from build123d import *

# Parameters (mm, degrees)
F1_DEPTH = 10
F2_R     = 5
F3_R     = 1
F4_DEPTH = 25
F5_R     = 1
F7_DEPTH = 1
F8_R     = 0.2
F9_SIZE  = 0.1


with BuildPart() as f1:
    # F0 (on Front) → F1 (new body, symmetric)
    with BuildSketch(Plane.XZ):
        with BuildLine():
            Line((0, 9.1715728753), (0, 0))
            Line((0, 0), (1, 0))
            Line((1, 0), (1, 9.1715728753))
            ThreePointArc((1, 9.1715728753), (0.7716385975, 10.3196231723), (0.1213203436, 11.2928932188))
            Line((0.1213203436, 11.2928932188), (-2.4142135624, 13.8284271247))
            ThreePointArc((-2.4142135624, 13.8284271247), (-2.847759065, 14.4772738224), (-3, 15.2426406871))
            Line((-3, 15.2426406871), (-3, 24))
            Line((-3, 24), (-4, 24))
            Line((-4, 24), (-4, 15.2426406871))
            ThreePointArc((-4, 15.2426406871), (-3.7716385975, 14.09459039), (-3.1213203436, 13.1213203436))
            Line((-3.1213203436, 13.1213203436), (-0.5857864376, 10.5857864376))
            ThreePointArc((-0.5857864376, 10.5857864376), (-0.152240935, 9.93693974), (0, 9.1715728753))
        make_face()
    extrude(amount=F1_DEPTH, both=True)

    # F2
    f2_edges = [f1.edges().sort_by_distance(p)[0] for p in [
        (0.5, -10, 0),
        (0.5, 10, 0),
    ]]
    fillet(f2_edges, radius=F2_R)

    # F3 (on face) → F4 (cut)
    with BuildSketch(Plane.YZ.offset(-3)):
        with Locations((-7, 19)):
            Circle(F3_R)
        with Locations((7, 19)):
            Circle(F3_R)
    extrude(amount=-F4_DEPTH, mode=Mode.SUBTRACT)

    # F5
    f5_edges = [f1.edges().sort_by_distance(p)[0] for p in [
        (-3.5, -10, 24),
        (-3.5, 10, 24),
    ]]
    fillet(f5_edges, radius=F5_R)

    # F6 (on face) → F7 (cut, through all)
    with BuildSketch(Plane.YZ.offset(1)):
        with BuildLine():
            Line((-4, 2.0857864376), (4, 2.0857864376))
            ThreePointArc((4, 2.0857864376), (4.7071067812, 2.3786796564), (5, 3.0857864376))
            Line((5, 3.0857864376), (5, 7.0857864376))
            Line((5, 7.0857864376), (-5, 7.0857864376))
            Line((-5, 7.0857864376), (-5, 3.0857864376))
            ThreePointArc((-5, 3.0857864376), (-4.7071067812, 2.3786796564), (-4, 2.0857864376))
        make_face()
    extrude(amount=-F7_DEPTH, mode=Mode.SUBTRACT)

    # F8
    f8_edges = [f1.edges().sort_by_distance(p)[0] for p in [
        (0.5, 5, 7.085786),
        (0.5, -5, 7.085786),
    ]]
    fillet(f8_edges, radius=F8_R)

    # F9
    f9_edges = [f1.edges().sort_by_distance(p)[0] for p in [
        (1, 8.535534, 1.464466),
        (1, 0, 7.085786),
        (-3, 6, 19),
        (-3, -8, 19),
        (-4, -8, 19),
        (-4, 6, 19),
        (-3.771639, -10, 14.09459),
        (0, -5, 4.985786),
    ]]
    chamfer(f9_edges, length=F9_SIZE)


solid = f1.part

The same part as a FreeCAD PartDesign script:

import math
import FreeCAD as App
import Part
import Sketcher
Q = App.Units.Quantity


def edges_at(feature, points):
    """Names of the edges that pass closest to the given points."""
    edges = feature.Shape.Edges
    near = lambda p: min(range(len(edges)), key=lambda i: edges[i].distToShape(Part.Vertex(*p))[0])
    return sorted({f"Edge{near(p) + 1}" for p in points})

doc = App.newDocument("Part")
params = doc.addObject("Spreadsheet::Sheet", "Params")
for row, (alias, value) in enumerate([
    ("sketch1_radius", "3 mm"),
    ("sketch1_radius2", "2 mm"),
    ("pad1_length", "20 mm"),
    ("fillet_radius", "5 mm"),
    ("sketch2_diameter", "2 mm"),
    ("pocket1_length", "25 mm"),
    ("fillet2_radius", "1 mm"),
    ("sketch3_radius", "1 mm"),
    ("sketch3_width", "8 mm"),
    ("sketch3_height", "4 mm"),
    ("fillet3_radius", "0.2 mm"),
    ("chamfer_size", "0.1 mm"),
], start=1):
    params.set(f"A{row}", alias)
    params.set(f"B{row}", "=" + value)
    params.setAlias(f"B{row}", alias)

body = doc.addObject("PartDesign::Body", "Body")

sketch1 = doc.addObject("Sketcher::SketchObject", "Sketch")
body.addObject(sketch1)
sketch1.AttachmentSupport = (doc.XZ_Plane, [""])
sketch1.MapMode = "FlatFace"
sketch1.addGeometry([
    Part.LineSegment(App.Vector(0, 9.2, 0), App.Vector(0, 0, 0)),
    Part.LineSegment(App.Vector(0, 0, 0), App.Vector(1, 0, 0)),
    Part.LineSegment(App.Vector(1, 0, 0), App.Vector(1, 9.2, 0)),
    Part.ArcOfCircle(Part.Circle(App.Vector(-2, 9.2, 0), App.Vector(0, 0, 1), 3), math.radians(0), math.radians(45)),
    Part.LineSegment(App.Vector(0.1, 11.3, 0), App.Vector(-2.4, 13.8, 0)),
    Part.ArcOfCircle(Part.Circle(App.Vector(-1, 15.2, 0), App.Vector(0, 0, 1), 2), math.radians(180), math.radians(225)),
    Part.LineSegment(App.Vector(-3, 15.2, 0), App.Vector(-3, 24, 0)),
    Part.LineSegment(App.Vector(-3, 24, 0), App.Vector(-4, 24, 0)),
    Part.LineSegment(App.Vector(-4, 24, 0), App.Vector(-4, 15.2, 0)),
    Part.ArcOfCircle(Part.Circle(App.Vector(-1, 15.2, 0), App.Vector(0, 0, 1), 3), math.radians(180), math.radians(225)),
    Part.LineSegment(App.Vector(-3.1, 13.1, 0), App.Vector(-0.6, 10.6, 0)),
    Part.ArcOfCircle(Part.Circle(App.Vector(-2, 9.2, 0), App.Vector(0, 0, 1), 2), math.radians(0), math.radians(45)),
], False)
sketch1.addConstraint([
    Sketcher.Constraint("Coincident", 0, 2, 1, 1),
    Sketcher.Constraint("Coincident", 1, 2, 2, 1),
    Sketcher.Constraint("Tangent", 2, 2, 3, 1),
    Sketcher.Constraint("Tangent", 3, 2, 4, 1),
    Sketcher.Constraint("Tangent", 4, 2, 5, 2),
    Sketcher.Constraint("Tangent", 5, 1, 6, 1),
    Sketcher.Constraint("Coincident", 6, 2, 7, 1),
    Sketcher.Constraint("Coincident", 7, 2, 8, 1),
    Sketcher.Constraint("Tangent", 8, 2, 9, 1),
    Sketcher.Constraint("Tangent", 9, 2, 10, 1),
    Sketcher.Constraint("Tangent", 10, 2, 11, 2),
    Sketcher.Constraint("Tangent", 11, 1, 0, 1),
    Sketcher.Constraint("Vertical", 0),
    Sketcher.Constraint("Horizontal", 1),
    Sketcher.Constraint("Vertical", 2),
    Sketcher.Constraint("Vertical", 6),
    Sketcher.Constraint("Horizontal", 7),
    Sketcher.Constraint("Vertical", 8),
    Sketcher.Constraint("Coincident", 0, 2, -1, 1),
    Sketcher.Constraint("Coincident", 9, 3, 5, 3),
    Sketcher.Constraint("Coincident", 11, 3, 3, 3),
    Sketcher.Constraint("Equal", 3, 9),
    Sketcher.Constraint("Equal", 5, 11),
    Sketcher.Constraint("Radius", 3, 3.0),
    Sketcher.Constraint("Radius", 5, 2.0),
    Sketcher.Constraint("Angle", 4, Q("135 deg")),
    Sketcher.Constraint("DistanceX", 5, 3, -1, 1, 1.0),
    Sketcher.Constraint("DistanceY", -1, 1, 6, 2, 24.0),
    Sketcher.Constraint("DistanceY", 6, 1, 6, 2, 8.757359),
])
sketch1.setExpression("Constraints[23]", "Params.sketch1_radius")
sketch1.setExpression("Constraints[24]", "Params.sketch1_radius2")
pad1 = doc.addObject("PartDesign::Pad", "Pad")
body.addObject(pad1)
pad1.Profile = sketch1
pad1.setExpression("Length", "Params.pad1_length")
pad1.Midplane = True
doc.recompute()

fillet = doc.addObject("PartDesign::Fillet", "Fillet")
body.addObject(fillet)
fillet.Base = (pad1, edges_at(pad1, [(0.5, -10, 0), (0.5, 10, 0)]))
fillet.setExpression("Radius", "Params.fillet_radius")

sketch2 = doc.addObject("Sketcher::SketchObject", "Sketch001")
body.addObject(sketch2)
sketch2.AttachmentSupport = (doc.YZ_Plane, [""])
sketch2.MapMode = "FlatFace"
sketch2.AttachmentOffset = App.Placement(App.Vector(0, 0, -3), App.Rotation())
sketch2.addGeometry([
    Part.Circle(App.Vector(-7, 19, 0), App.Vector(0, 0, 1), 1),
    Part.Circle(App.Vector(7, 19, 0), App.Vector(0, 0, 1), 1),
], False)
sketch2.addConstraint([
    Sketcher.Constraint("Equal", 0, 1),
    Sketcher.Constraint("Symmetric", 0, 3, 1, 3, -2),
    Sketcher.Constraint("Diameter", 0, 2.0),
    Sketcher.Constraint("DistanceX", 0, 3, -1, 1, 7.0),
    Sketcher.Constraint("DistanceY", -1, 1, 0, 3, 19.0),
])
sketch2.setExpression("Constraints[2]", "Params.sketch2_diameter")
pocket1 = doc.addObject("PartDesign::Pocket", "Pocket")
body.addObject(pocket1)
pocket1.Profile = sketch2
pocket1.setExpression("Length", "Params.pocket1_length")
doc.recompute()

fillet2 = doc.addObject("PartDesign::Fillet", "Fillet001")
body.addObject(fillet2)
fillet2.Base = (pocket1, edges_at(pocket1, [(-3.5, -10, 24), (-3.5, 10, 24)]))
fillet2.setExpression("Radius", "Params.fillet2_radius")

sketch3 = doc.addObject("Sketcher::SketchObject", "Sketch002")
body.addObject(sketch3)
sketch3.AttachmentSupport = (doc.YZ_Plane, [""])
sketch3.MapMode = "FlatFace"
sketch3.AttachmentOffset = App.Placement(App.Vector(0, 0, 1), App.Rotation())
sketch3.addGeometry([
    Part.LineSegment(App.Vector(-4, 2.1, 0), App.Vector(4, 2.1, 0)),
    Part.ArcOfCircle(Part.Circle(App.Vector(4, 3.1, 0), App.Vector(0, 0, 1), 1), math.radians(-90), math.radians(0)),
    Part.LineSegment(App.Vector(5, 3.1, 0), App.Vector(5, 7.1, 0)),
    Part.LineSegment(App.Vector(5, 7.1, 0), App.Vector(-5, 7.1, 0)),
    Part.LineSegment(App.Vector(-5, 7.1, 0), App.Vector(-5, 3.1, 0)),
    Part.ArcOfCircle(Part.Circle(App.Vector(-4, 3.1, 0), App.Vector(0, 0, 1), 1), math.radians(180), math.radians(270)),
], False)
sketch3.addConstraint([
    Sketcher.Constraint("Tangent", 0, 2, 1, 1),
    Sketcher.Constraint("Tangent", 1, 2, 2, 1),
    Sketcher.Constraint("Coincident", 2, 2, 3, 1),
    Sketcher.Constraint("Coincident", 3, 2, 4, 1),
    Sketcher.Constraint("Tangent", 4, 2, 5, 1),
    Sketcher.Constraint("Tangent", 5, 2, 0, 1),
    Sketcher.Constraint("Horizontal", 0),
    Sketcher.Constraint("Vertical", 2),
    Sketcher.Constraint("Horizontal", 3),
    Sketcher.Constraint("Vertical", 4),
    Sketcher.Constraint("Equal", 1, 5),
    Sketcher.Constraint("Radius", 1, 1.0),
    Sketcher.Constraint("DistanceX", 0, 1, 0, 2, 8.0),
    Sketcher.Constraint("DistanceY", 2, 1, 2, 2, 4.0),
    Sketcher.Constraint("DistanceX", -1, 1, 1, 3, 4.0),
    Sketcher.Constraint("DistanceY", -1, 1, 1, 3, 3.085786),
])
sketch3.setExpression("Constraints[11]", "Params.sketch3_radius")
sketch3.setExpression("Constraints[12]", "Params.sketch3_width")
sketch3.setExpression("Constraints[13]", "Params.sketch3_height")
pocket2 = doc.addObject("PartDesign::Pocket", "Pocket001")
body.addObject(pocket2)
pocket2.Profile = sketch3
pocket2.Type = "ThroughAll"
doc.recompute()

fillet3 = doc.addObject("PartDesign::Fillet", "Fillet002")
body.addObject(fillet3)
fillet3.Base = (pocket2, edges_at(pocket2, [(0.5, 5, 7.086), (0.5, -5, 7.086)]))
fillet3.setExpression("Radius", "Params.fillet3_radius")
doc.recompute()

chamfer = doc.addObject("PartDesign::Chamfer", "Chamfer")
body.addObject(chamfer)
chamfer.Base = (fillet3, edges_at(fillet3, [
    (1, 8.536, 1.464),
    (1, 0, 7.086),
    (-3, 6, 19),
    (-3, -8, 19),
    (-4, -8, 19),
    (-4, 6, 19),
    (-3.772, -10, 14.095),
    (0, -5, 4.986),
]))
chamfer.setExpression("Size", "Params.chamfer_size")

doc.recompute()
